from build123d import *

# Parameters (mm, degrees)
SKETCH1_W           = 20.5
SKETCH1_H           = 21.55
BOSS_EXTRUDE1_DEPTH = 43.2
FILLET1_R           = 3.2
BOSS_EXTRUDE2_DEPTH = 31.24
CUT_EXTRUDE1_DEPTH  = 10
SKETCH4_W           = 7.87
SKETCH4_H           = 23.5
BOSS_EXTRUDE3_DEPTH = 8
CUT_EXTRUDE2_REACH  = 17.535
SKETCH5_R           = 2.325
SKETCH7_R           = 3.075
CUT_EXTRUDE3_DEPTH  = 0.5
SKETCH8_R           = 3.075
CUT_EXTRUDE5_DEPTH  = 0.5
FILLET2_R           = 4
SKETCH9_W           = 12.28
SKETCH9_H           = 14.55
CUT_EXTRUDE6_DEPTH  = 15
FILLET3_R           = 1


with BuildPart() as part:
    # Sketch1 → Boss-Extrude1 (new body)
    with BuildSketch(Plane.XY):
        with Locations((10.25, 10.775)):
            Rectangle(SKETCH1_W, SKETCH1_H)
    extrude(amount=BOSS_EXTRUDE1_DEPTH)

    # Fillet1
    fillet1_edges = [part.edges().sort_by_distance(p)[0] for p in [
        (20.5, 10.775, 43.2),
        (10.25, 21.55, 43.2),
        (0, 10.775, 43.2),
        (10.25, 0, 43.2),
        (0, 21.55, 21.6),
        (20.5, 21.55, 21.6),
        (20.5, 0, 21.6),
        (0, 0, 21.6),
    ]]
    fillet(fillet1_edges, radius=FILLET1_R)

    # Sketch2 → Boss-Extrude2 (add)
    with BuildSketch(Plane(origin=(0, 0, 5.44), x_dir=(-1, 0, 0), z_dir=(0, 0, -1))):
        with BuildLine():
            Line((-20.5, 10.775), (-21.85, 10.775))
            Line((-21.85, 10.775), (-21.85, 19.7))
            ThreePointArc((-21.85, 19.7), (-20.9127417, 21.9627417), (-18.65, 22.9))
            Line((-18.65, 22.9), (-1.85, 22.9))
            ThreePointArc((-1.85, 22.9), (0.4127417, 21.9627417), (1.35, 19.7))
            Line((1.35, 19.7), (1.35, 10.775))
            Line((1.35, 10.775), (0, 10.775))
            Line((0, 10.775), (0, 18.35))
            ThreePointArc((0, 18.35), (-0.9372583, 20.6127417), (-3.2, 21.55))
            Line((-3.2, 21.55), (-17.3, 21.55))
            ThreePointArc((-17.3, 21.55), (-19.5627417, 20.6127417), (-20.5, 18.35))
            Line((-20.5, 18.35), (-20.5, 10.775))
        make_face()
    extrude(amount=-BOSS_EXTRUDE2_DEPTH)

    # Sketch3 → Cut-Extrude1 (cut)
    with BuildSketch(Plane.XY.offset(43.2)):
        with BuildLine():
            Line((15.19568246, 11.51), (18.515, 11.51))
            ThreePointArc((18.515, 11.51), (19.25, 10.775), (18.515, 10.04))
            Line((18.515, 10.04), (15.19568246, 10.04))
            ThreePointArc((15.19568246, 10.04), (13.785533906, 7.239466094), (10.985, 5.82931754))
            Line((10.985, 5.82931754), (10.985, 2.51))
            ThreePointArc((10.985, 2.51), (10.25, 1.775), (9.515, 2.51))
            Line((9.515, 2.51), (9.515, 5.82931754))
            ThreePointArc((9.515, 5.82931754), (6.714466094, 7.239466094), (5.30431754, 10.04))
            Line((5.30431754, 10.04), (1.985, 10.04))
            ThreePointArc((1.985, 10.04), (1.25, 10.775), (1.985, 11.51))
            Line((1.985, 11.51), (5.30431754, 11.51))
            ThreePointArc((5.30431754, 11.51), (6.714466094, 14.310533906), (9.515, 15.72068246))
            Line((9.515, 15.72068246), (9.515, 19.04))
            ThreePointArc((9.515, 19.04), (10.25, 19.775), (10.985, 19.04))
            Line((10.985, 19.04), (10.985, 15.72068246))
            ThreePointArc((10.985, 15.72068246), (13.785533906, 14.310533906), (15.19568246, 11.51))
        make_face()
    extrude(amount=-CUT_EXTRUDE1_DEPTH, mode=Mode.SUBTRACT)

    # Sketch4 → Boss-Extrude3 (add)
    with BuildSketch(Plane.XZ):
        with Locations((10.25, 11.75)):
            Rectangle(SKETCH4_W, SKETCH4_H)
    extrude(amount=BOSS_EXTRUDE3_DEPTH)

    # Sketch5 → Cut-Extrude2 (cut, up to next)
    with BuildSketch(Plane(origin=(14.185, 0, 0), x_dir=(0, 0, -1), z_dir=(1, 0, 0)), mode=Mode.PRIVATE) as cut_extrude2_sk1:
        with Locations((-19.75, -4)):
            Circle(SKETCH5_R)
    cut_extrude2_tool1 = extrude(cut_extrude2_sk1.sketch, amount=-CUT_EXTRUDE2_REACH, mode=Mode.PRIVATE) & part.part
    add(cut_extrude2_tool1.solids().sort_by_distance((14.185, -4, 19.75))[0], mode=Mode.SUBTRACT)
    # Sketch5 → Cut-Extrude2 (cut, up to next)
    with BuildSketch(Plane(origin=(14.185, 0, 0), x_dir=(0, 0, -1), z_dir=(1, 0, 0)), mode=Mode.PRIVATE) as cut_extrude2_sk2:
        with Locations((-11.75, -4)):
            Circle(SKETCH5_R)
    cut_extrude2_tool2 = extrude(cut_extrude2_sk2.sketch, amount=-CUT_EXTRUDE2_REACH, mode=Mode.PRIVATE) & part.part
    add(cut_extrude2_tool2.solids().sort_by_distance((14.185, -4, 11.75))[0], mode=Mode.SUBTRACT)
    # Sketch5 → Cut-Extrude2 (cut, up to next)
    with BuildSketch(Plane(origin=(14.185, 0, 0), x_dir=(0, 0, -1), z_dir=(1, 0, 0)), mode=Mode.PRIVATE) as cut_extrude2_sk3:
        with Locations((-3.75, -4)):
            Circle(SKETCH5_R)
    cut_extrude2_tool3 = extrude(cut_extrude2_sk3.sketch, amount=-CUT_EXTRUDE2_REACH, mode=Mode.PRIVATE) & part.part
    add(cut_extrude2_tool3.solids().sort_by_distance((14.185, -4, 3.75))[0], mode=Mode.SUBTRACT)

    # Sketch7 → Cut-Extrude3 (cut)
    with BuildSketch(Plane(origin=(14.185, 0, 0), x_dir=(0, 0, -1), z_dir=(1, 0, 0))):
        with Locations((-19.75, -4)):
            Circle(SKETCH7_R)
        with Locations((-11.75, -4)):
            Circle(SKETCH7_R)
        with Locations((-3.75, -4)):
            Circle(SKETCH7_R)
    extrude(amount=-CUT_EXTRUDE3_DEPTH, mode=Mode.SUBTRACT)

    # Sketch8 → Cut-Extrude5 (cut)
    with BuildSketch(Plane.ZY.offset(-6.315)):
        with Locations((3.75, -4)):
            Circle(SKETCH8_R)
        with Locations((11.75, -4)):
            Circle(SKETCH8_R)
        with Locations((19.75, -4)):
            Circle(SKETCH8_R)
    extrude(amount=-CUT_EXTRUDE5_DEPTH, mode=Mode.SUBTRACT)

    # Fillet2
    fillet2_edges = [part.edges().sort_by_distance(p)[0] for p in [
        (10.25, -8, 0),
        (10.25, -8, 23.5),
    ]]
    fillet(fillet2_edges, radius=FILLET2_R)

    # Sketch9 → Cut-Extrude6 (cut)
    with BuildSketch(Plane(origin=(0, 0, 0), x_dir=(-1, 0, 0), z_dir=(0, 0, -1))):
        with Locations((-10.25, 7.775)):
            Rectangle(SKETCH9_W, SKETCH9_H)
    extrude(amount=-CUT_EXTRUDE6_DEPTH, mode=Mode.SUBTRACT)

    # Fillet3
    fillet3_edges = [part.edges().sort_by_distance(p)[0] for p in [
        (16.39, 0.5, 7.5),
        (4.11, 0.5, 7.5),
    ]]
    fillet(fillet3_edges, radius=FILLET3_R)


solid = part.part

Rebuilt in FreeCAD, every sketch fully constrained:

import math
import FreeCAD as App
import Part
import Sketcher


def edges_at(feature, points):
    """Names of the edges that pass closest to the given points."""
    edges = feature.Shape.Edges
    near = lambda p: min(range(len(edges)), key=lambda i: edges[i].distToShape(Part.Vertex(*p))[0])
    return sorted({f"Edge{near(p) + 1}" for p in points})

doc = App.newDocument("Part")
body = doc.addObject("PartDesign::Body", "Body")

# Sketch on XY plane
sketch1 = body.newObject("Sketcher::SketchObject", "Sketch")
sketch1.AttachmentSupport = (doc.getObject("XY_Plane"), [""])
sketch1.MapMode = "FlatFace"
sketch1.addGeometry(Part.LineSegment(App.Vector(0, 22, 0), App.Vector(0, 0, 0)), False)
sketch1.addGeometry(Part.LineSegment(App.Vector(0, 0, 0), App.Vector(20, 0, 0)), False)
sketch1.addGeometry(Part.LineSegment(App.Vector(20, 0, 0), App.Vector(20, 22, 0)), False)
sketch1.addGeometry(Part.LineSegment(App.Vector(20, 22, 0), App.Vector(0, 22, 0)), False)
sketch1.addConstraint(Sketcher.Constraint("Coincident", 0, 2, 1, 1))
sketch1.addConstraint(Sketcher.Constraint("Coincident", 1, 2, 2, 1))
sketch1.addConstraint(Sketcher.Constraint("Coincident", 2, 2, 3, 1))
sketch1.addConstraint(Sketcher.Constraint("Coincident", 3, 2, 0, 1))
sketch1.addConstraint(Sketcher.Constraint("Vertical", 0))
sketch1.addConstraint(Sketcher.Constraint("Horizontal", 1))
sketch1.addConstraint(Sketcher.Constraint("Vertical", 2))
sketch1.addConstraint(Sketcher.Constraint("Horizontal", 3))
sketch1.addConstraint(Sketcher.Constraint("Coincident", 0, 2, -1, 1))
sketch1.addConstraint(Sketcher.Constraint("DistanceX", 1, 1, 1, 2, 20.5))
sketch1.addConstraint(Sketcher.Constraint("DistanceY", 0, 2, 0, 1, 21.55))
pad1 = body.newObject("PartDesign::Pad", "Pad")
pad1.Profile = sketch1
pad1.Length = 43.2
doc.recompute()

fillet = body.newObject("PartDesign::Fillet", "Fillet")
fillet.Base = (pad1, edges_at(pad1, [
    (20.5, 10.775, 43.2),
    (10.25, 21.55, 43.2),
    (0, 10.775, 43.2),
    (10.25, 0, 43.2),
    (0, 21.55, 21.6),
    (20.5, 21.55, 21.6),
    (20.5, 0, 21.6),
    (0, 0, 21.6),
]))
fillet.Radius = 3.2

# Sketch on XY plane
sketch2 = body.newObject("Sketcher::SketchObject", "Sketch001")
sketch2.AttachmentSupport = (doc.getObject("XY_Plane"), [""])
sketch2.MapMode = "FlatFace"
sketch2.AttachmentOffset = App.Placement(App.Vector(0, 0, 5.44), App.Rotation())
sketch2.addGeometry(Part.LineSegment(App.Vector(21.9, 10.8, 0), App.Vector(20.5, 10.8, 0)), False)
sketch2.addGeometry(Part.LineSegment(App.Vector(20.5, 10.8, 0), App.Vector(20.5, 18.4, 0)), False)
sketch2.addGeometry(Part.ArcOfCircle(Part.Circle(App.Vector(17.3, 18.4, 0), App.Vector(0, 0, 1), 3.2), math.radians(0), math.radians(90)), False)
sketch2.addGeometry(Part.LineSegment(App.Vector(17.3, 21.6, 0), App.Vector(3.2, 21.6, 0)), False)
sketch2.addGeometry(Part.ArcOfCircle(Part.Circle(App.Vector(3.2, 18.4, 0), App.Vector(0, 0, 1), 3.2), math.radians(90), math.radians(180)), False)
sketch2.addGeometry(Part.LineSegment(App.Vector(0, 18.4, 0), App.Vector(0, 10.8, 0)), False)
sketch2.addGeometry(Part.LineSegment(App.Vector(0, 10.8, 0), App.Vector(-1.4, 10.8, 0)), False)
sketch2.addGeometry(Part.LineSegment(App.Vector(-1.4, 10.8, 0), App.Vector(-1.4, 19.7, 0)), False)
sketch2.addGeometry(Part.ArcOfCircle(Part.Circle(App.Vector(1.8, 19.7, 0), App.Vector(0, 0, 1), 3.2), math.radians(90), math.radians(180)), False)
sketch2.addGeometry(Part.LineSegment(App.Vector(1.9, 22.9, 0), App.Vector(18.6, 22.9, 0)), False)
sketch2.addGeometry(Part.ArcOfCircle(Part.Circle(App.Vector(18.7, 19.7, 0), App.Vector(0, 0, 1), 3.2), math.radians(0), math.radians(90)), False)
sketch2.addGeometry(Part.LineSegment(App.Vector(21.9, 19.7, 0), App.Vector(21.9, 10.8, 0)), False)
sketch2.addConstraint(Sketcher.Constraint("Coincident", 0, 2, 1, 1))
sketch2.addConstraint(Sketcher.Constraint("Tangent", 1, 2, 2, 1))
sketch2.addConstraint(Sketcher.Constraint("Tangent", 2, 2, 3, 1))
sketch2.addConstraint(Sketcher.Constraint("Tangent", 3, 2, 4, 1))
sketch2.addConstraint(Sketcher.Constraint("Tangent", 4, 2, 5, 1))
sketch2.addConstraint(Sketcher.Constraint("Coincident", 5, 2, 6, 1))
sketch2.addConstraint(Sketcher.Constraint("Coincident", 6, 2, 7, 1))
sketch2.addConstraint(Sketcher.Constraint("Tangent", 7, 2, 8, 2))
sketch2.addConstraint(Sketcher.Constraint("Tangent", 8, 1, 9, 1))
sketch2.addConstraint(Sketcher.Constraint("Tangent", 9, 2, 10, 2))
sketch2.addConstraint(Sketcher.Constraint("Tangent", 10, 1, 11, 1))
sketch2.addConstraint(Sketcher.Constraint("Coincident", 11, 2, 0, 1))
sketch2.addConstraint(Sketcher.Constraint("Horizontal", 0))
sketch2.addConstraint(Sketcher.Constraint("Vertical", 1))
sketch2.addConstraint(Sketcher.Constraint("Horizontal", 3))
sketch2.addConstraint(Sketcher.Constraint("Vertical", 5))
sketch2.addConstraint(Sketcher.Constraint("Horizontal", 6))
sketch2.addConstraint(Sketcher.Constraint("Vertical", 7))
sketch2.addConstraint(Sketcher.Constraint("Horizontal", 9))
sketch2.addConstraint(Sketcher.Constraint("Vertical", 11))
sketch2.addConstraint(Sketcher.Constraint("Equal", 2, 4))
sketch2.addConstraint(Sketcher.Constraint("Equal", 4, 8))
sketch2.addConstraint(Sketcher.Constraint("Equal", 8, 10))
sketch2.addConstraint(Sketcher.Constraint("PointOnObject", 4, 2, -2))
sketch2.addConstraint(Sketcher.Constraint("Horizontal", 0, 2, 5, 2))
sketch2.addConstraint(Sketcher.Constraint("Equal", 0, 6))
sketch2.addConstraint(Sketcher.Constraint("Radius", 2, 3.2))
sketch2.addConstraint(Sketcher.Constraint("DistanceX", 3, 2, 3, 1, 14.1))
sketch2.addConstraint(Sketcher.Constraint("DistanceX", 9, 1, 9, 2, 16.8))
sketch2.addConstraint(Sketcher.Constraint("DistanceY", -1, 1, 8, 3, 19.7))
sketch2.addConstraint(Sketcher.Constraint("DistanceY", 1, 1, 1, 2, 7.575))
sketch2.addConstraint(Sketcher.Constraint("DistanceY", 7, 1, 7, 2, 8.925))
pad2 = body.newObject("PartDesign::Pad", "Pad001")
pad2.Profile = sketch2
pad2.Length = 31.24

# Sketch on XY plane
sketch3 = body.newObject("Sketcher::SketchObject", "Sketch002")
sketch3.AttachmentSupport = (doc.getObject("XY_Plane"), [""])
sketch3.MapMode = "FlatFace"
sketch3.AttachmentOffset = App.Placement(App.Vector(0, 0, 43.2), App.Rotation())
sketch3.addGeometry(Part.LineSegment(App.Vector(18.5, 11.5, 0), App.Vector(15.2, 11.5, 0)), False)
sketch3.addGeometry(Part.ArcOfCircle(Part.Circle(App.Vector(10.3, 10.8, 0), App.Vector(0, 0, 1), 5), math.radians(8), math.radians(82)), False)
sketch3.addGeometry(Part.LineSegment(App.Vector(11, 15.7, 0), App.Vector(11, 19, 0)), False)
sketch3.addGeometry(Part.ArcOfCircle(Part.Circle(App.Vector(10.2, 19, 0), App.Vector(0, 0, 1), 0.7), math.radians(0), math.radians(180)), False)
sketch3.addGeometry(Part.LineSegment(App.Vector(9.5, 19, 0), App.Vector(9.5, 15.7, 0)), False)
sketch3.addGeometry(Part.ArcOfCircle(Part.Circle(App.Vector(10.2, 10.8, 0), App.Vector(0, 0, 1), 5), math.radians(98), math.radians(172)), False)
sketch3.addGeometry(Part.LineSegment(App.Vector(5.3, 11.5, 0), App.Vector(2, 11.5, 0)), False)
sketch3.addGeometry(Part.ArcOfCircle(Part.Circle(App.Vector(2, 10.8, 0), App.Vector(0, 0, 1), 0.7), math.radians(90), math.radians(270)), False)
sketch3.addGeometry(Part.LineSegment(App.Vector(2, 10, 0), App.Vector(5.3, 10, 0)), False)
sketch3.addGeometry(Part.ArcOfCircle(Part.Circle(App.Vector(10.2, 10.8, 0), App.Vector(0, 0, 1), 5), math.radians(-172), math.radians(-98)), False)
sketch3.addGeometry(Part.LineSegment(App.Vector(9.5, 5.8, 0), App.Vector(9.5, 2.5, 0)), False)
sketch3.addGeometry(Part.ArcOfCircle(Part.Circle(App.Vector(10.2, 2.5, 0), App.Vector(0, 0, 1), 0.7), math.radians(180), math.radians(360)), False)
sketch3.addGeometry(Part.LineSegment(App.Vector(11, 2.5, 0), App.Vector(11, 5.8, 0)), False)
sketch3.addGeometry(Part.ArcOfCircle(Part.Circle(App.Vector(10.3, 10.8, 0), App.Vector(0, 0, 1), 5), math.radians(-82), math.radians(-8)), False)
sketch3.addGeometry(Part.LineSegment(App.Vector(15.2, 10, 0), App.Vector(18.5, 10, 0)), False)
sketch3.addGeometry(Part.ArcOfCircle(Part.Circle(App.Vector(18.5, 10.8, 0), App.Vector(0, 0, 1), 0.7), math.radians(-90), math.radians(90)), False)
sketch3.addConstraint(Sketcher.Constraint("Coincident", 0, 2, 1, 1))
sketch3.addConstraint(Sketcher.Constraint("Coincident", 1, 2, 2, 1))
sketch3.addConstraint(Sketcher.Constraint("Tangent", 2, 2, 3, 1))
sketch3.addConstraint(Sketcher.Constraint("Tangent", 3, 2, 4, 1))
sketch3.addConstraint(Sketcher.Constraint("Coincident", 4, 2, 5, 1))
sketch3.addConstraint(Sketcher.Constraint("Coincident", 5, 2, 6, 1))
sketch3.addConstraint(Sketcher.Constraint("Tangent", 6, 2, 7, 1))
sketch3.addConstraint(Sketcher.Constraint("Tangent", 7, 2, 8, 1))
sketch3.addConstraint(Sketcher.Constraint("Coincident", 8, 2, 9, 1))
sketch3.addConstraint(Sketcher.Constraint("Coincident", 9, 2, 10, 1))
sketch3.addConstraint(Sketcher.Constraint("Tangent", 10, 2, 11, 1))
sketch3.addConstraint(Sketcher.Constraint("Tangent", 11, 2, 12, 1))
sketch3.addConstraint(Sketcher.Constraint("Coincident", 12, 2, 13, 1))
sketch3.addConstraint(Sketcher.Constraint("Coincident", 13, 2, 14, 1))
sketch3.addConstraint(Sketcher.Constraint("Tangent", 14, 2, 15, 1))
sketch3.addConstraint(Sketcher.Constraint("Tangent", 15, 2, 0, 1))
sketch3.addConstraint(Sketcher.Constraint("Horizontal", 0))
sketch3.addConstraint(Sketcher.Constraint("Vertical", 2))
sketch3.addConstraint(Sketcher.Constraint("Vertical", 4))
sketch3.addConstraint(Sketcher.Constraint("Horizontal", 6))
sketch3.addConstraint(Sketcher.Constraint("Horizontal", 8))
sketch3.addConstraint(Sketcher.Constraint("Vertical", 10))
sketch3.addConstraint(Sketcher.Constraint("Vertical", 12))
sketch3.addConstraint(Sketcher.Constraint("Horizontal", 14))
sketch3.addConstraint(Sketcher.Constraint("Coincident", 5, 3, 1, 3))
sketch3.addConstraint(Sketcher.Constraint("Coincident", 9, 3, 1, 3))
sketch3.addConstraint(Sketcher.Constraint("Coincident", 13, 3, 1, 3))
sketch3.addConstraint(Sketcher.Constraint("Equal", 1, 5))
sketch3.addConstraint(Sketcher.Constraint("Equal", 3, 7))
sketch3.addConstraint(Sketcher.Constraint("Equal", 5, 9))
sketch3.addConstraint(Sketcher.Constraint("Equal", 7, 11))
sketch3.addConstraint(Sketcher.Constraint("Equal", 9, 13))
sketch3.addConstraint(Sketcher.Constraint("Equal", 11, 15))
sketch3.addConstraint(Sketcher.Constraint("Horizontal", 5, 3, 7, 3))
sketch3.addConstraint(Sketcher.Constraint("Horizontal", 13, 3, 15, 3))
sketch3.addConstraint(Sketcher.Constraint("Horizontal", 1, 2, 4, 2))
sketch3.addConstraint(Sketcher.Constraint("Horizontal", 9, 2, 12, 2))
sketch3.addConstraint(Sketcher.Constraint("Equal", 0, 6))
sketch3.addConstraint(Sketcher.Constraint("Equal", 14, 2))
sketch3.addConstraint(Sketcher.Constraint("Equal", 4, 10))
sketch3.addConstraint(Sketcher.Constraint("Radius", 1, 5.0))
sketch3.addConstraint(Sketcher.Constraint("Radius", 3, 0.735))
sketch3.addConstraint(Sketcher.Constraint("DistanceX", -1, 1, 1, 3, 10.25))
sketch3.addConstraint(Sketcher.Constraint("DistanceY", -1, 1, 3, 3, 19.04))
sketch3.addConstraint(Sketcher.Constraint("DistanceY", -1, 1, 11, 3, 2.51))
pocket1 = body.newObject("PartDesign::Pocket", "Pocket")
pocket1.Profile = sketch3
pocket1.Length = 10

# Sketch on XZ plane
sketch4 = body.newObject("Sketcher::SketchObject", "Sketch003")
sketch4.AttachmentSupport = (doc.getObject("XZ_Plane"), [""])
sketch4.MapMode = "FlatFace"
sketch4.addGeometry(Part.LineSegment(App.Vector(6, 24, 0), App.Vector(6, 0, 0)), False)
sketch4.addGeometry(Part.LineSegment(App.Vector(6, 0, 0), App.Vector(14, 0, 0)), False)
sketch4.addGeometry(Part.LineSegment(App.Vector(14, 0, 0), App.Vector(14, 24, 0)), False)
sketch4.addGeometry(Part.LineSegment(App.Vector(14, 24, 0), App.Vector(6, 24, 0)), False)
sketch4.addConstraint(Sketcher.Constraint("Coincident", 0, 2, 1, 1))
sketch4.addConstraint(Sketcher.Constraint("Coincident", 1, 2, 2, 1))
sketch4.addConstraint(Sketcher.Constraint("Coincident", 2, 2, 3, 1))
sketch4.addConstraint(Sketcher.Constraint("Coincident", 3, 2, 0, 1))
sketch4.addConstraint(Sketcher.Constraint("Vertical", 0))
sketch4.addConstraint(Sketcher.Constraint("Horizontal", 1))
sketch4.addConstraint(Sketcher.Constraint("Vertical", 2))
sketch4.addConstraint(Sketcher.Constraint("Horizontal", 3))
sketch4.addConstraint(Sketcher.Constraint("PointOnObject", 0, 2, -1))
sketch4.addConstraint(Sketcher.Constraint("DistanceY", 0, 2, 0, 1, 23.5))
sketch4.addConstraint(Sketcher.Constraint("DistanceX", 1, 1, 1, 2, 7.87))
sketch4.addConstraint(Sketcher.Constraint("DistanceX", -1, 1, 0, 2, 6.315))
pad3 = body.newObject("PartDesign::Pad", "Pad002")
pad3.Profile = sketch4
pad3.Length = 8

# Sketch on YZ plane
sketch5 = body.newObject("Sketcher::SketchObject", "Sketch004")
sketch5.AttachmentSupport = (doc.getObject("YZ_Plane"), [""])
sketch5.MapMode = "FlatFace"
sketch5.AttachmentOffset = App.Placement(App.Vector(0, 0, 14.185), App.Rotation())
sketch5.addGeometry(Part.Circle(App.Vector(-4, 19.8, 0), App.Vector(0, 0, 1), 2.3), False)
sketch5.addConstraint(Sketcher.Constraint("Diameter", 0, 4.65))
sketch5.addConstraint(Sketcher.Constraint("DistanceX", 0, 3, -1, 1, 4.0))
sketch5.addConstraint(Sketcher.Constraint("DistanceY", -1, 1, 0, 3, 19.75))
pocket2 = body.newObject("PartDesign::Pocket", "Pocket001")
pocket2.Profile = sketch5
pocket2.Type = "UpToFirst"

# Sketch on YZ plane
sketch6 = body.newObject("Sketcher::SketchObject", "Sketch005")
sketch6.AttachmentSupport = (doc.getObject("YZ_Plane"), [""])
sketch6.MapMode = "FlatFace"
sketch6.AttachmentOffset = App.Placement(App.Vector(0, 0, 14.185), App.Rotation())
sketch6.addGeometry(Part.Circle(App.Vector(-4, 11.8, 0), App.Vector(0, 0, 1), 2.3), False)
sketch6.addConstraint(Sketcher.Constraint("Diameter", 0, 4.65))
sketch6.addConstraint(Sketcher.Constraint("DistanceX", 0, 3, -1, 1, 4.0))
sketch6.addConstraint(Sketcher.Constraint("DistanceY", -1, 1, 0, 3, 11.75))
pocket3 = body.newObject("PartDesign::Pocket", "Pocket002")
pocket3.Profile = sketch6
pocket3.Type = "UpToFirst"

# Sketch on YZ plane
sketch7 = body.newObject("Sketcher::SketchObject", "Sketch006")
sketch7.AttachmentSupport = (doc.getObject("YZ_Plane"), [""])
sketch7.MapMode = "FlatFace"
sketch7.AttachmentOffset = App.Placement(App.Vector(0, 0, 14.185), App.Rotation())
sketch7.addGeometry(Part.Circle(App.Vector(-4, 3.8, 0), App.Vector(0, 0, 1), 2.3), False)
sketch7.addConstraint(Sketcher.Constraint("Diameter", 0, 4.65))
sketch7.addConstraint(Sketcher.Constraint("DistanceX", 0, 3, -1, 1, 4.0))
sketch7.addConstraint(Sketcher.Constraint("DistanceY", -1, 1, 0, 3, 3.75))
pocket4 = body.newObject("PartDesign::Pocket", "Pocket003")
pocket4.Profile = sketch7
pocket4.Type = "UpToFirst"

# Sketch on YZ plane
sketch8 = body.newObject("Sketcher::SketchObject", "Sketch007")
sketch8.AttachmentSupport = (doc.getObject("YZ_Plane"), [""])
sketch8.MapMode = "FlatFace"
sketch8.AttachmentOffset = App.Placement(App.Vector(0, 0, 14.185), App.Rotation())
sketch8.addGeometry(Part.Circle(App.Vector(-4, 19.8, 0), App.Vector(0, 0, 1), 3.1), False)
sketch8.addGeometry(Part.Circle(App.Vector(-4, 11.8, 0), App.Vector(0, 0, 1), 3.1), False)
sketch8.addGeometry(Part.Circle(App.Vector(-4, 3.8, 0), App.Vector(0, 0, 1), 3.1), False)
sketch8.addConstraint(Sketcher.Constraint("Equal", 0, 1))
sketch8.addConstraint(Sketcher.Constraint("Equal", 1, 2))
sketch8.addConstraint(Sketcher.Constraint("Vertical", 0, 3, 1, 3))
sketch8.addConstraint(Sketcher.Constraint("Vertical", 1, 3, 2, 3))
sketch8.addConstraint(Sketcher.Constraint("Diameter", 0, 6.15))
sketch8.addConstraint(Sketcher.Constraint("DistanceX", 0, 3, -1, 1, 4.0))
sketch8.addConstraint(Sketcher.Constraint("DistanceY", 1, 3, 0, 3, 8.0))
sketch8.addConstraint(Sketcher.Constraint("DistanceY", 2, 3, 1, 3, 8.0))
sketch8.addConstraint(Sketcher.Constraint("DistanceY", -1, 1, 0, 3, 19.75))
pocket5 = body.newObject("PartDesign::Pocket", "Pocket004")
pocket5.Profile = sketch8
pocket5.Length = 0.5

# Sketch on YZ plane
sketch9 = body.newObject("Sketcher::SketchObject", "Sketch008")
sketch9.AttachmentSupport = (doc.getObject("YZ_Plane"), [""])
sketch9.MapMode = "FlatFace"
sketch9.AttachmentOffset = App.Placement(App.Vector(0, 0, 6.315), App.Rotation())
sketch9.addGeometry(Part.Circle(App.Vector(-4, 3.8, 0), App.Vector(0, 0, 1), 3.1), False)
sketch9.addGeometry(Part.Circle(App.Vector(-4, 11.8, 0), App.Vector(0, 0, 1), 3.1), False)
sketch9.addGeometry(Part.Circle(App.Vector(-4, 19.8, 0), App.Vector(0, 0, 1), 3.1), False)
sketch9.addConstraint(Sketcher.Constraint("Equal", 0, 1))
sketch9.addConstraint(Sketcher.Constraint("Equal", 1, 2))
sketch9.addConstraint(Sketcher.Constraint("Vertical", 0, 3, 1, 3))
sketch9.addConstraint(Sketcher.Constraint("Vertical", 1, 3, 2, 3))
sketch9.addConstraint(Sketcher.Constraint("Diameter", 0, 6.15))
sketch9.addConstraint(Sketcher.Constraint("DistanceX", 0, 3, -1, 1, 4.0))
sketch9.addConstraint(Sketcher.Constraint("DistanceY", 0, 3, 1, 3, 8.0))
sketch9.addConstraint(Sketcher.Constraint("DistanceY", 1, 3, 2, 3, 8.0))
sketch9.addConstraint(Sketcher.Constraint("DistanceY", -1, 1, 0, 3, 3.75))
pocket6 = body.newObject("PartDesign::Pocket", "Pocket005")
pocket6.Profile = sketch9
pocket6.Length = 0.5
pocket6.Reversed = True
doc.recompute()

fillet2 = body.newObject("PartDesign::Fillet", "Fillet001")
fillet2.Base = (pocket6, edges_at(pocket6, [(10.25, -8, 0), (10.25, -8, 23.5)]))
fillet2.Radius = 4

# Sketch on XY plane
sketch10 = body.newObject("Sketcher::SketchObject", "Sketch009")
sketch10.AttachmentSupport = (doc.getObject("XY_Plane"), [""])
sketch10.MapMode = "FlatFace"
sketch10.addGeometry(Part.LineSegment(App.Vector(16, 15, 0), App.Vector(16, 0, 0)), False)
sketch10.addGeometry(Part.LineSegment(App.Vector(16, 0, 0), App.Vector(4, 0, 0)), False)
sketch10.addGeometry(Part.LineSegment(App.Vector(4, 0, 0), App.Vector(4, 15, 0)), False)
sketch10.addGeometry(Part.LineSegment(App.Vector(4, 15, 0), App.Vector(16, 15, 0)), False)
sketch10.addConstraint(Sketcher.Constraint("Coincident", 0, 2, 1, 1))
sketch10.addConstraint(Sketcher.Constraint("Coincident", 1, 2, 2, 1))
sketch10.addConstraint(Sketcher.Constraint("Coincident", 2, 2, 3, 1))
sketch10.addConstraint(Sketcher.Constraint("Coincident", 3, 2, 0, 1))
sketch10.addConstraint(Sketcher.Constraint("Vertical", 0))
sketch10.addConstraint(Sketcher.Constraint("Horizontal", 1))
sketch10.addConstraint(Sketcher.Constraint("Vertical", 2))
sketch10.addConstraint(Sketcher.Constraint("Horizontal", 3))
sketch10.addConstraint(Sketcher.Constraint("DistanceX", 1, 2, 1, 1, 12.28))
sketch10.addConstraint(Sketcher.Constraint("DistanceY", 0, 2, 0, 1, 14.55))
sketch10.addConstraint(Sketcher.Constraint("DistanceY", -1, 1, 0, 2, 0.5))
sketch10.addConstraint(Sketcher.Constraint("DistanceX", -1, 1, 0, 2, 16.39))
pocket7 = body.newObject("PartDesign::Pocket", "Pocket006")
pocket7.Profile = sketch10
pocket7.Length = 15
pocket7.Reversed = True
doc.recompute()

fillet3 = body.newObject("PartDesign::Fillet", "Fillet002")
fillet3.Base = (pocket7, edges_at(pocket7, [(16.39, 0.5, 7.5), (4.11, 0.5, 7.5)]))
fillet3.Radius = 1

doc.recompute()
